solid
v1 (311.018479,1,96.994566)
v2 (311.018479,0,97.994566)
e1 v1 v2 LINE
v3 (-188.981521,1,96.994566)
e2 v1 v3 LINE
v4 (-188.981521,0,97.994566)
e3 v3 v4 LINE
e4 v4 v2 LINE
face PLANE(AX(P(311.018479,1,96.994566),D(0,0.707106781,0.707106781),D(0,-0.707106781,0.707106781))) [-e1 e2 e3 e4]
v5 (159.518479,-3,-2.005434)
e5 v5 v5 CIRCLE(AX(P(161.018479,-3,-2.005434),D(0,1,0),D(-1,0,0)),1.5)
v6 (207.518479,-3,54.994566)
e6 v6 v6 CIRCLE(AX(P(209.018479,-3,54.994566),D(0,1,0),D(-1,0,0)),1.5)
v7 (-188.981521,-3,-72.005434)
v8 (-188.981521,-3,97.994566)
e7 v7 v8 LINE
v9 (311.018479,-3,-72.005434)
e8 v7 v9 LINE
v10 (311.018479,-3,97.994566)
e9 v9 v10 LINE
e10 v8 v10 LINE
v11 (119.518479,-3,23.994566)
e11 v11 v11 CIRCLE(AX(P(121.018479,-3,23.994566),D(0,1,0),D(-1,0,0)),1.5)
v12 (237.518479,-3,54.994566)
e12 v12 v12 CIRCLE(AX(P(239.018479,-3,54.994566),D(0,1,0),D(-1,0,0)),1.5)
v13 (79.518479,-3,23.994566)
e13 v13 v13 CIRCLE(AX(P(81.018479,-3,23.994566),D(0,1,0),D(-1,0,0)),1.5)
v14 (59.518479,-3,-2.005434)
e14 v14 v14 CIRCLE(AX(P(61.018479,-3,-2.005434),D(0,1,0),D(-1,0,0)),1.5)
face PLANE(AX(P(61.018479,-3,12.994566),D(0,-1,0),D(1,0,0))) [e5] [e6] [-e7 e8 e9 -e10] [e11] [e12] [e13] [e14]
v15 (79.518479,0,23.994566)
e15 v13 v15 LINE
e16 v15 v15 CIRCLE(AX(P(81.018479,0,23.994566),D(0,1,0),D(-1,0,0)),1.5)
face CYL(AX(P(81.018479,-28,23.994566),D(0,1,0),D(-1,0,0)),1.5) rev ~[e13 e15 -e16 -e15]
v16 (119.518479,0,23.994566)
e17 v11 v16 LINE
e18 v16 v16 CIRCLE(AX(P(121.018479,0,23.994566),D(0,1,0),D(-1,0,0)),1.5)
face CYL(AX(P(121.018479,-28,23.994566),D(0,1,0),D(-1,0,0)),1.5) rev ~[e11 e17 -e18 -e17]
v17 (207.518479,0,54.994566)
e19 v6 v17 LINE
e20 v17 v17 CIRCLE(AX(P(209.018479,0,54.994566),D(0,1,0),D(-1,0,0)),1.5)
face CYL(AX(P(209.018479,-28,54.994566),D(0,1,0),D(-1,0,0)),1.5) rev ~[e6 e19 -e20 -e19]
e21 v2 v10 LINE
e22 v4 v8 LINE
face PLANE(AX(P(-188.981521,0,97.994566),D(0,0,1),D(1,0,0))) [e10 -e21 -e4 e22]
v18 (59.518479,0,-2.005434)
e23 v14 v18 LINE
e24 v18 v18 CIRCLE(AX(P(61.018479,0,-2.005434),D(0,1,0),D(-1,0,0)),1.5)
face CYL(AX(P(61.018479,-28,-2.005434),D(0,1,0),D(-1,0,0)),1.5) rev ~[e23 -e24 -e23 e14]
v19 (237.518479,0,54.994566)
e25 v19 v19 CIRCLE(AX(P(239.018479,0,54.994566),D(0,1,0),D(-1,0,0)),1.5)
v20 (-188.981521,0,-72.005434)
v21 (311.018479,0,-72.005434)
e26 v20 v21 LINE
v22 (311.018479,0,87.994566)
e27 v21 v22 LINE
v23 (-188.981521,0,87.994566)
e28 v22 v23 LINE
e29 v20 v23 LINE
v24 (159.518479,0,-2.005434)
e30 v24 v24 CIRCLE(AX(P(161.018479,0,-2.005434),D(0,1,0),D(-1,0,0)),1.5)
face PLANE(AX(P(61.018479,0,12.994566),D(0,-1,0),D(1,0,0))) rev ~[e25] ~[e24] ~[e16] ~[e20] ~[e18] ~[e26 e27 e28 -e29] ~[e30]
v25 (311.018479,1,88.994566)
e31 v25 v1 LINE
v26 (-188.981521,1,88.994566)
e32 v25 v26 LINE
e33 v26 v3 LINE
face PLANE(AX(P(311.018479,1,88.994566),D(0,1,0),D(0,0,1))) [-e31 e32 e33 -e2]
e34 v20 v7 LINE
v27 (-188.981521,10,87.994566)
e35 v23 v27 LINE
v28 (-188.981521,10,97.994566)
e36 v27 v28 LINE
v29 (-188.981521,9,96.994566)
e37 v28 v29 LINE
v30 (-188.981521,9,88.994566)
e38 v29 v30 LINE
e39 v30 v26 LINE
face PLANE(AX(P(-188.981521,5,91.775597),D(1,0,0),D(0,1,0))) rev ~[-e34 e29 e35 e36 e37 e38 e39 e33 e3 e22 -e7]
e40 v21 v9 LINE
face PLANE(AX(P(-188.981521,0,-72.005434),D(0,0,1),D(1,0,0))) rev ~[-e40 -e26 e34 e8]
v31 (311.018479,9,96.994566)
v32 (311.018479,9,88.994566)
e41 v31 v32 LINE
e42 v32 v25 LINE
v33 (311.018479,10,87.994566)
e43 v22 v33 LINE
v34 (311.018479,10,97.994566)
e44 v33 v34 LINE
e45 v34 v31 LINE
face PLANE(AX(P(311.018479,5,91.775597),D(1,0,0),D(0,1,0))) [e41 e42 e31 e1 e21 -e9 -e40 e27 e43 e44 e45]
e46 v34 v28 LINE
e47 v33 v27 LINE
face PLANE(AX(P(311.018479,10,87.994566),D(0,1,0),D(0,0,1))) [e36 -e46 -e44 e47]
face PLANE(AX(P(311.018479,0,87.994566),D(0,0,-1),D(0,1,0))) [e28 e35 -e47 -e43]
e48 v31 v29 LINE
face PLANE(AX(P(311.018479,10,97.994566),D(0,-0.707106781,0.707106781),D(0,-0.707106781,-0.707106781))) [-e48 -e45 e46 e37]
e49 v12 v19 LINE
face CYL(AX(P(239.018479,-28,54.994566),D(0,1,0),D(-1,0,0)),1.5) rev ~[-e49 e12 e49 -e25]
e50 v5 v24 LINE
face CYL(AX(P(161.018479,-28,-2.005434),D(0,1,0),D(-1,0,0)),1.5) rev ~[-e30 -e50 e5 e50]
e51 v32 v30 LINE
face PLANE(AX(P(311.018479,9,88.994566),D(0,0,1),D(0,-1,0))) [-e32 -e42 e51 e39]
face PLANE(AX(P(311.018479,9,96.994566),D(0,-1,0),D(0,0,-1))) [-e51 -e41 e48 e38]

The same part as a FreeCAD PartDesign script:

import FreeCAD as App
import Part
import Sketcher
from FreeCAD import Vector

doc = App.newDocument("Part")
body = doc.addObject("PartDesign::Body", "Body")

sketch1 = doc.addObject("Sketcher::SketchObject", "Sketch")
body.addObject(sketch1)
sketch1.AttachmentSupport = (doc.XZ_Plane, [""])
sketch1.MapMode = "FlatFace"
sketch1.addGeometry([
    Part.LineSegment(Vector(-188.981521, 97.994566, 0), Vector(-188.981521, -72.005434, 0)),
    Part.LineSegment(Vector(-188.981521, -72.005434, 0), Vector(311.018479, -72.005434, 0)),
    Part.LineSegment(Vector(311.018479, -72.005434, 0), Vector(311.018479, 97.994566, 0)),
    Part.LineSegment(Vector(311.018479, 97.994566, 0), Vector(-188.981521, 97.994566, 0)),
], False)
sketch1.addConstraint([
    Sketcher.Constraint("Coincident", 0, 2, 1, 1),
    Sketcher.Constraint("Coincident", 1, 2, 2, 1),
    Sketcher.Constraint("Coincident", 2, 2, 3, 1),
    Sketcher.Constraint("Coincident", 3, 2, 0, 1),
    Sketcher.Constraint("Vertical", 0),
    Sketcher.Constraint("Horizontal", 1),
    Sketcher.Constraint("Vertical", 2),
    Sketcher.Constraint("Horizontal", 3),
    Sketcher.Constraint("DistanceX", 1, 1, 1, 2, 500.0),
    Sketcher.Constraint("DistanceY", 0, 2, 0, 1, 170.0),
    Sketcher.Constraint("DistanceX", 0, 2, -1, 1, 188.981521),
    Sketcher.Constraint("DistanceY", 0, 2, -1, 1, 72.005434),
])
pad1 = doc.addObject("PartDesign::Pad", "Pad")
body.addObject(pad1)
pad1.Profile = sketch1
pad1.Length = 3

sketch2 = doc.addObject("Sketcher::SketchObject", "Sketch001")
body.addObject(sketch2)
sketch2.AttachmentSupport = (doc.YZ_Plane, [""])
sketch2.MapMode = "FlatFace"
sketch2.AttachmentOffset = App.Placement(Vector(0, 0, 311.018479), App.Rotation())
sketch2.addGeometry([
    Part.LineSegment(Vector(0, 97.994566, 0), Vector(0, 87.994566, 0)),
    Part.LineSegment(Vector(0, 87.994566, 0), Vector(10, 87.994566, 0)),
    Part.LineSegment(Vector(10, 87.994566, 0), Vector(10, 97.994566, 0)),
    Part.LineSegment(Vector(10, 97.994566, 0), Vector(9, 96.994566, 0)),
    Part.LineSegment(Vector(9, 96.994566, 0), Vector(9, 88.994566, 0)),
    Part.LineSegment(Vector(9, 88.994566, 0), Vector(1, 88.994566, 0)),
    Part.LineSegment(Vector(1, 88.994566, 0), Vector(1, 96.994566, 0)),
    Part.LineSegment(Vector(1, 96.994566, 0), Vector(0, 97.994566, 0)),
], False)
sketch2.addConstraint([
    Sketcher.Constraint("Coincident", 0, 2, 1, 1),
    Sketcher.Constraint("Coincident", 1, 2, 2, 1),
    Sketcher.Constraint("Coincident", 2, 2, 3, 1),
    Sketcher.Constraint("Coincident", 3, 2, 4, 1),
    Sketcher.Constraint("Coincident", 4, 2, 5, 1),
    Sketcher.Constraint("Coincident", 5, 2, 6, 1),
    Sketcher.Constraint("Coincident", 6, 2, 7, 1),
    Sketcher.Constraint("Coincident", 7, 2, 0, 1),
    Sketcher.Constraint("Vertical", 0),
    Sketcher.Constraint("Horizontal", 1),
    Sketcher.Constraint("Vertical", 2),
    Sketcher.Constraint("Vertical", 4),
    Sketcher.Constraint("Horizontal", 5),
    Sketcher.Constraint("Vertical", 6),
    Sketcher.Constraint("PointOnObject", 0, 2, -2),
    Sketcher.Constraint("Perpendicular", 3, 7),
    Sketcher.Constraint("Horizontal", 3, 2, 6, 2),
    Sketcher.Constraint("Horizontal", 2, 2, 7, 2),
    Sketcher.Constraint("Equal", 1, 0),
    Sketcher.Constraint("Equal", 5, 4),
    Sketcher.Constraint("Equal", 3, 7),
    Sketcher.Constraint("DistanceX", 1, 1, 1, 2, 10.0),
    Sketcher.Constraint("DistanceX", 5, 2, 5, 1, 8.0),
    Sketcher.Constraint("DistanceY", -1, 1, 0, 2, 87.994566),
])
pad2 = doc.addObject("PartDesign::Pad", "Pad001")
body.addObject(pad2)
pad2.Profile = sketch2
pad2.Length = 500
pad2.Reversed = True

sketch3 = doc.addObject("Sketcher::SketchObject", "Sketch002")
body.addObject(sketch3)
sketch3.AttachmentSupport = (doc.XZ_Plane, [""])
sketch3.MapMode = "FlatFace"
sketch3.AttachmentOffset = App.Placement(Vector(0, 0, 3), App.Rotation())
sketch3.addGeometry([
    Part.Circle(Vector(61.018479, -2.005434, 0), Vector(0, 0, 1), 1.5),
    Part.Circle(Vector(81.018479, 23.994566, 0), Vector(0, 0, 1), 1.5),
    Part.Circle(Vector(121.018479, 23.994566, 0), Vector(0, 0, 1), 1.5),
    Part.Circle(Vector(161.018479, -2.005434, 0), Vector(0, 0, 1), 1.5),
    Part.Circle(Vector(209.018479, 54.994566, 0), Vector(0, 0, 1), 1.5),
    Part.Circle(Vector(239.018479, 54.994566, 0), Vector(0, 0, 1), 1.5),
], False)
sketch3.addConstraint([
    Sketcher.Constraint("Equal", 0, 1),
    Sketcher.Constraint("Equal", 1, 2),
    Sketcher.Constraint("Equal", 2, 3),
    Sketcher.Constraint("Equal", 3, 4),
    Sketcher.Constraint("Equal", 4, 5),
    Sketcher.Constraint("Horizontal", 1, 3, 2, 3),
    Sketcher.Constraint("Horizontal", 0, 3, 3, 3),
    Sketcher.Constraint("Horizontal", 4, 3, 5, 3),
    Sketcher.Constraint("Diameter", 0, 3.0),
    Sketcher.Constraint("DistanceX", 0, 3, 1, 3, 20.0),
    Sketcher.Constraint("DistanceY", 0, 3, 1, 3, 26.0),
    Sketcher.Constraint("DistanceX", 1, 3, 2, 3, 40.0),
    Sketcher.Constraint("DistanceX", 2, 3, 3, 3, 40.0),
    Sketcher.Constraint("DistanceX", 3, 3, 4, 3, 48.0),
    Sketcher.Constraint("DistanceY", 3, 3, 4, 3, 57.0),
    Sketcher.Constraint("DistanceX", 4, 3, 5, 3, 30.0),
    Sketcher.Constraint("DistanceX", -1, 1, 0, 3, 61.018479),
    Sketcher.Constraint("DistanceY", 0, 3, -1, 1, 2.005434),
])
doc.recompute()
hole = doc.addObject("PartDesign::Hole", "Hole")
body.addObject(hole)
hole.Profile = sketch3
hole.ThreadType = "None"
hole.Diameter = 3
hole.DepthType = "Dimension"
hole.Depth = 25
hole.DrillPoint = "Flat"

doc.recompute()
